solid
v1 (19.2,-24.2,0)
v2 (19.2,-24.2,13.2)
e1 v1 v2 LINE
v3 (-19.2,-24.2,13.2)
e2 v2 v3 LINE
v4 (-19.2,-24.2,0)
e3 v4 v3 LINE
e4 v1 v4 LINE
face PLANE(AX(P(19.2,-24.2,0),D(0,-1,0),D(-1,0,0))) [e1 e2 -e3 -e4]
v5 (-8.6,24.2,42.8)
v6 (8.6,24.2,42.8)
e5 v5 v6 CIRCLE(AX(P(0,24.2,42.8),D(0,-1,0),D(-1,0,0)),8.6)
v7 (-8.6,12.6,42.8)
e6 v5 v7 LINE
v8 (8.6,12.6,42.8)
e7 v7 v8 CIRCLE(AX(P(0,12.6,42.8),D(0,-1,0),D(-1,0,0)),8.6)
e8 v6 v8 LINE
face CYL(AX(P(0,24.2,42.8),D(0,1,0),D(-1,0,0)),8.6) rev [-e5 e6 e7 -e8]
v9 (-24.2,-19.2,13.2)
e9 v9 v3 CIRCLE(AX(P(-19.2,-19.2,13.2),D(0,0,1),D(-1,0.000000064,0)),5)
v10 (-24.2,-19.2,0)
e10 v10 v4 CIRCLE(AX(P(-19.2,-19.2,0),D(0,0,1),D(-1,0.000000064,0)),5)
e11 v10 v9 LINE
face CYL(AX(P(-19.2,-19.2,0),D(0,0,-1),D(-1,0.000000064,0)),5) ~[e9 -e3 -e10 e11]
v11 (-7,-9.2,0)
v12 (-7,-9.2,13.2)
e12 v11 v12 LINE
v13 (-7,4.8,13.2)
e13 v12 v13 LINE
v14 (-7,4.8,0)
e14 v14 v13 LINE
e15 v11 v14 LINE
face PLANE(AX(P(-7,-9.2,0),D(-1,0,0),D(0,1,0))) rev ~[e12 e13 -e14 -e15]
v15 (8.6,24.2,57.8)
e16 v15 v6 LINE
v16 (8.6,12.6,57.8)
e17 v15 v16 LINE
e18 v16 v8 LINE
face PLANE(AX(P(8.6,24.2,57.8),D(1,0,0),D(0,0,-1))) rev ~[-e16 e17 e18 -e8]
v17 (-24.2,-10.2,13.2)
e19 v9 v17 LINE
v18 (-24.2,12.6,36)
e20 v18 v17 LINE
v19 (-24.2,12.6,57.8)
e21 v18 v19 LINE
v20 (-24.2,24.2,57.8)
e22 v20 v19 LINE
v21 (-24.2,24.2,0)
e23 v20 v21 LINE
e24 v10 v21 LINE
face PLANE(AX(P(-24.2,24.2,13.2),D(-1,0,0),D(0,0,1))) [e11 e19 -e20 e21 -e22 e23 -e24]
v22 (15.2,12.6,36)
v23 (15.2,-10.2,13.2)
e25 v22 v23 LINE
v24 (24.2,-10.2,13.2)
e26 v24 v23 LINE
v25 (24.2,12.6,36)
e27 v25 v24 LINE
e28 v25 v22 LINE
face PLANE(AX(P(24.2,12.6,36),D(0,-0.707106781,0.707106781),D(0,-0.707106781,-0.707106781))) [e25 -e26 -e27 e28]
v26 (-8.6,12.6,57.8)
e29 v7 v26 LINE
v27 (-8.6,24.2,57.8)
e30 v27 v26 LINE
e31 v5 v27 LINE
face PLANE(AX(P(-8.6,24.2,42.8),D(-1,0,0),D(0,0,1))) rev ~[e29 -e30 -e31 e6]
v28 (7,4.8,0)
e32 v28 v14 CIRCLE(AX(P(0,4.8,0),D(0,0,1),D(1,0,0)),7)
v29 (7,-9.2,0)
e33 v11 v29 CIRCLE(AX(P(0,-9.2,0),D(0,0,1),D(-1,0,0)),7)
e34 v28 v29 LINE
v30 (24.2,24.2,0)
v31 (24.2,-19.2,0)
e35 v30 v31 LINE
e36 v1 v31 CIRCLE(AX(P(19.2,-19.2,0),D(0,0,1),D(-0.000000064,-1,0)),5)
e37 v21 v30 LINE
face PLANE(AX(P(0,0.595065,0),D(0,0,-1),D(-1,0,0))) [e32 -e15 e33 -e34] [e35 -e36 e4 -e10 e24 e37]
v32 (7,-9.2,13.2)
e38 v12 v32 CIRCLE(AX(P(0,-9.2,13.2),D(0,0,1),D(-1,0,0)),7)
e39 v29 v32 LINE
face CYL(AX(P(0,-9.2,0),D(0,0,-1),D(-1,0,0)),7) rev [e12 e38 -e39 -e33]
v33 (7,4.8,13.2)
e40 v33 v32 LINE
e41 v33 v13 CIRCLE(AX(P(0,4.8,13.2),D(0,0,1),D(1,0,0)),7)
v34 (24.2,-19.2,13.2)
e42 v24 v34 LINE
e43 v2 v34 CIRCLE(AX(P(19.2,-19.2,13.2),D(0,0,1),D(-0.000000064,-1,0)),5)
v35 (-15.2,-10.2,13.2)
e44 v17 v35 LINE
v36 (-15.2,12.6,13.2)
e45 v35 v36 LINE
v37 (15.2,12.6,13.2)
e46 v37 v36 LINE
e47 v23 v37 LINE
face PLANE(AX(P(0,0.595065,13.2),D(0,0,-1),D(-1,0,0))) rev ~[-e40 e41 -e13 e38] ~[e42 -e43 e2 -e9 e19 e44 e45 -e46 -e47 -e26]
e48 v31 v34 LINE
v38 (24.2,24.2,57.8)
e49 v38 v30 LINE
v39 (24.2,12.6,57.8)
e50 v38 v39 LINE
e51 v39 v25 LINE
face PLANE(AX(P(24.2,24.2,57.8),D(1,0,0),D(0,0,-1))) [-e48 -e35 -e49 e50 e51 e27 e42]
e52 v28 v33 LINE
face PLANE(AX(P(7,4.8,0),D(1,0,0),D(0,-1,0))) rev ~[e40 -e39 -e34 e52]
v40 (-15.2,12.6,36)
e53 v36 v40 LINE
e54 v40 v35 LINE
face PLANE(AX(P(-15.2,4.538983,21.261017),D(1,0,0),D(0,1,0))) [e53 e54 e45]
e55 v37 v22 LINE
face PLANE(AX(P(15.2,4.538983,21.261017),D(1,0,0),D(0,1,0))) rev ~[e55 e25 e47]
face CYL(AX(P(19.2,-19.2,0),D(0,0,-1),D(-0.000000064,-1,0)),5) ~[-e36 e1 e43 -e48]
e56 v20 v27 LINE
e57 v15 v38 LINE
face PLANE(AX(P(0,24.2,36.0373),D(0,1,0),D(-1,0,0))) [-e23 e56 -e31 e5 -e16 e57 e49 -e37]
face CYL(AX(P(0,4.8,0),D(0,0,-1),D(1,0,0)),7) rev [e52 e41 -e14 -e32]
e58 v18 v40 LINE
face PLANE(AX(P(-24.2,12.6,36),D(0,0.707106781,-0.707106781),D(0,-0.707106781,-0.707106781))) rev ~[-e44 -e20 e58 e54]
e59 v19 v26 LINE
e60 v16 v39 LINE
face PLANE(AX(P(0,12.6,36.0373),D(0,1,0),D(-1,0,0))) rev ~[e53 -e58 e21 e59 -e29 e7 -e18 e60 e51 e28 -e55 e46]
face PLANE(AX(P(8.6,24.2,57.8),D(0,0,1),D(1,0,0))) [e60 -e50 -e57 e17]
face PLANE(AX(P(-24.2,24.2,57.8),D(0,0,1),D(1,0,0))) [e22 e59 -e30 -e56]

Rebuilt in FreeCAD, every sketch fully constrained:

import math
import FreeCAD as App
import Part
import Sketcher
from FreeCAD import Vector
Q = App.Units.Quantity

doc = App.newDocument("Part")
body = doc.addObject("PartDesign::Body", "Body")

# Sketch on XZ plane
sketch1 = body.newObject("Sketcher::SketchObject", "Sketch")
sketch1.AttachmentSupport = (doc.getObject("XZ_Plane"), [""])
sketch1.MapMode = "FlatFace"
sketch1.AttachmentOffset = App.Placement(Vector(0, 0, -24.2), App.Rotation())
sketch1.addGeometry(Part.LineSegment(Vector(-8.6, 57.8, 0), Vector(-24.2, 57.8, 0)), False)
sketch1.addGeometry(Part.LineSegment(Vector(-24.2, 57.8, 0), Vector(-24.2, 13.2, 0)), False)
sketch1.addGeometry(Part.LineSegment(Vector(-24.2, 13.2, 0), Vector(24.2, 13.2, 0)), False)
sketch1.addGeometry(Part.LineSegment(Vector(24.2, 13.2, 0), Vector(24.2, 57.8, 0)), False)
sketch1.addGeometry(Part.LineSegment(Vector(24.2, 57.8, 0), Vector(8.6, 57.8, 0)), False)
sketch1.addGeometry(Part.LineSegment(Vector(8.6, 57.8, 0), Vector(8.6, 42.8, 0)), False)
sketch1.addGeometry(Part.ArcOfCircle(Part.Circle(Vector(0, 42.8, 0), Vector(0, 0, 1), 8.6), math.radians(180), math.radians(360)), False)
sketch1.addGeometry(Part.LineSegment(Vector(-8.6, 42.8, 0), Vector(-8.6, 57.8, 0)), False)
sketch1.addConstraint(Sketcher.Constraint("Coincident", 0, 2, 1, 1))
sketch1.addConstraint(Sketcher.Constraint("Coincident", 1, 2, 2, 1))
sketch1.addConstraint(Sketcher.Constraint("Coincident", 2, 2, 3, 1))
sketch1.addConstraint(Sketcher.Constraint("Coincident", 3, 2, 4, 1))
sketch1.addConstraint(Sketcher.Constraint("Coincident", 4, 2, 5, 1))
sketch1.addConstraint(Sketcher.Constraint("Tangent", 5, 2, 6, 2))
sketch1.addConstraint(Sketcher.Constraint("Tangent", 6, 1, 7, 1))
sketch1.addConstraint(Sketcher.Constraint("Coincident", 7, 2, 0, 1))
sketch1.addConstraint(Sketcher.Constraint("Horizontal", 0))
sketch1.addConstraint(Sketcher.Constraint("Vertical", 1))
sketch1.addConstraint(Sketcher.Constraint("Horizontal", 2))
sketch1.addConstraint(Sketcher.Constraint("Vertical", 3))
sketch1.addConstraint(Sketcher.Constraint("Horizontal", 4))
sketch1.addConstraint(Sketcher.Constraint("Vertical", 5))
sketch1.addConstraint(Sketcher.Constraint("Vertical", 7))
sketch1.addConstraint(Sketcher.Constraint("Symmetric", 0, 2, 3, 2, -2))
sketch1.addConstraint(Sketcher.Constraint("PointOnObject", 6, 3, -2))
sketch1.addConstraint(Sketcher.Constraint("Radius", 6, Q("8.6 mm")))
sketch1.addConstraint(Sketcher.Constraint("DistanceY", 5, 2, 5, 1, Q("15 mm")))
sketch1.addConstraint(Sketcher.Constraint("DistanceX", 0, 2, 0, 1, Q("15.6 mm")))
sketch1.addConstraint(Sketcher.Constraint("DistanceY", 1, 2, 1, 1, Q("44.6 mm")))
sketch1.addConstraint(Sketcher.Constraint("DistanceY", -1, 1, 6, 3, Q("42.8 mm")))
pad1 = body.newObject("PartDesign::Pad", "Pad")
pad1.Profile = sketch1
pad1.Length = 11.6
body2 = doc.addObject("PartDesign::Body", "Body001")

# Sketch on XY plane
sketch2 = body2.newObject("Sketcher::SketchObject", "Sketch001")
sketch2.AttachmentSupport = (doc.getObject("XY_Plane001"), [""])
sketch2.MapMode = "FlatFace"
sketch2.addGeometry(Part.LineSegment(Vector(24.2, 24.2, 0), Vector(-24.2, 24.2, 0)), False)
sketch2.addGeometry(Part.LineSegment(Vector(-24.2, 24.2, 0), Vector(-24.2, -19.2, 0)), False)
sketch2.addGeometry(Part.ArcOfCircle(Part.Circle(Vector(-19.2, -19.2, 0), Vector(0, 0, 1), 5), math.radians(179.999996), math.radians(270.000004)), False)
sketch2.addGeometry(Part.LineSegment(Vector(-19.2, -24.2, 0), Vector(19.2, -24.2, 0)), False)
sketch2.addGeometry(Part.ArcOfCircle(Part.Circle(Vector(19.2, -19.2, 0), Vector(0, 0, 1), 5), math.radians(-90.000004), math.radians(0.000004)), False)
sketch2.addGeometry(Part.LineSegment(Vector(24.2, -19.2, 0), Vector(24.2, 24.2, 0)), False)
sketch2.addGeometry(Part.LineSegment(Vector(7, 4.8, 0), Vector(7, -9.2, 0)), False)
sketch2.addGeometry(Part.ArcOfCircle(Part.Circle(Vector(0, -9.2, 0), Vector(0, 0, 1), 7), math.radians(180), math.radians(360)), False)
sketch2.addGeometry(Part.LineSegment(Vector(-7, -9.2, 0), Vector(-7, 4.8, 0)), False)
sketch2.addGeometry(Part.ArcOfCircle(Part.Circle(Vector(0, 4.8, 0), Vector(0, 0, 1), 7), math.radians(0), math.radians(180)), False)
sketch2.addConstraint(Sketcher.Constraint("Coincident", 0, 2, 1, 1))
sketch2.addConstraint(Sketcher.Constraint("Tangent", 1, 2, 2, 1))
sketch2.addConstraint(Sketcher.Constraint("Tangent", 2, 2, 3, 1))
sketch2.addConstraint(Sketcher.Constraint("Tangent", 3, 2, 4, 1))
sketch2.addConstraint(Sketcher.Constraint("Tangent", 4, 2, 5, 1))
sketch2.addConstraint(Sketcher.Constraint("Coincident", 5, 2, 0, 1))
sketch2.addConstraint(Sketcher.Constraint("Tangent", 6, 2, 7, 2))
sketch2.addConstraint(Sketcher.Constraint("Tangent", 7, 1, 8, 1))
sketch2.addConstraint(Sketcher.Constraint("Tangent", 8, 2, 9, 2))
sketch2.addConstraint(Sketcher.Constraint("Tangent", 9, 1, 6, 1))
sketch2.addConstraint(Sketcher.Constraint("Horizontal", 0))
sketch2.addConstraint(Sketcher.Constraint("Vertical", 1))
sketch2.addConstraint(Sketcher.Constraint("Horizontal", 3))
sketch2.addConstraint(Sketcher.Constraint("Vertical", 5))
sketch2.addConstraint(Sketcher.Constraint("Vertical", 6))
sketch2.addConstraint(Sketcher.Constraint("Vertical", 8))
sketch2.addConstraint(Sketcher.Constraint("Equal", 2, 4))
sketch2.addConstraint(Sketcher.Constraint("PointOnObject", 7, 3, -2))
sketch2.addConstraint(Sketcher.Constraint("Radius", 2, Q("5 mm")))
sketch2.addConstraint(Sketcher.Constraint("Radius", 7, Q("7 mm")))
sketch2.addConstraint(Sketcher.Constraint("DistanceY", 6, 2, 6, 1, Q("14 mm")))
sketch2.addConstraint(Sketcher.Constraint("DistanceX", 0, 2, 0, 1, Q("48.4 mm")))
sketch2.addConstraint(Sketcher.Constraint("DistanceY", 1, 2, 1, 1, Q("43.4 mm")))
sketch2.addConstraint(Sketcher.Constraint("DistanceY", 2, 3, 7, 3, Q("10 mm")))
sketch2.addConstraint(Sketcher.Constraint("DistanceX", 2, 3, -1, 1, Q("19.2 mm")))
sketch2.addConstraint(Sketcher.Constraint("DistanceY", 2, 3, -1, 1, Q("19.2 mm")))
pad2 = body2.newObject("PartDesign::Pad", "Pad001")
pad2.Profile = sketch2
pad2.Length = 13.2
doc.recompute()

boolean = body2.newObject("PartDesign::Boolean", "Boolean")
boolean.Type = "Fuse"
boolean.addObjects([body])
body3 = doc.addObject("PartDesign::Body", "Body002")

# Sketch on YZ plane
sketch3 = body3.newObject("Sketcher::SketchObject", "Sketch002")
sketch3.AttachmentSupport = (doc.getObject("YZ_Plane002"), [""])
sketch3.MapMode = "FlatFace"
sketch3.AttachmentOffset = App.Placement(Vector(0, 0, -24.2), App.Rotation())
sketch3.addGeometry(Part.LineSegment(Vector(-10.2, 13.2, 0), Vector(12.6, 13.2, 0)), False)
sketch3.addGeometry(Part.LineSegment(Vector(12.6, 13.2, 0), Vector(12.6, 36, 0)), False)
sketch3.addGeometry(Part.LineSegment(Vector(12.6, 36, 0), Vector(-10.2, 13.2, 0)), False)
sketch3.addConstraint(Sketcher.Constraint("Coincident", 0, 2, 1, 1))
sketch3.addConstraint(Sketcher.Constraint("Coincident", 1, 2, 2, 1))
sketch3.addConstraint(Sketcher.Constraint("Coincident", 2, 2, 0, 1))
sketch3.addConstraint(Sketcher.Constraint("Horizontal", 0))
sketch3.addConstraint(Sketcher.Constraint("Vertical", 1))
sketch3.addConstraint(Sketcher.Constraint("Equal", 0, 1))
sketch3.addConstraint(Sketcher.Constraint("DistanceX", 0, 1, 0, 2, Q("22.8 mm")))
sketch3.addConstraint(Sketcher.Constraint("DistanceY", -1, 1, 1, 2, Q("36 mm")))
sketch3.addConstraint(Sketcher.Constraint("DistanceX", -1, 1, 0, 2, Q("12.6 mm")))
pad3 = body3.newObject("PartDesign::Pad", "Pad002")
pad3.Profile = sketch3
pad3.Length = 9
body4 = doc.addObject("PartDesign::Body", "Body003")
body4.AllowCompound = True

# Sketch on YZ plane
sketch4 = body4.newObject("Sketcher::SketchObject", "Sketch003")
sketch4.AttachmentSupport = (doc.getObject("YZ_Plane003"), [""])
sketch4.MapMode = "FlatFace"
sketch4.AttachmentOffset = App.Placement(Vector(0, 0, 24.2), App.Rotation())
sketch4.addGeometry(Part.LineSegment(Vector(-10.2, 13.2, 0), Vector(12.6, 13.2, 0)), False)
sketch4.addGeometry(Part.LineSegment(Vector(12.6, 13.2, 0), Vector(12.6, 36, 0)), False)
sketch4.addGeometry(Part.LineSegment(Vector(12.6, 36, 0), Vector(-10.2, 13.2, 0)), False)
sketch4.addConstraint(Sketcher.Constraint("Coincident", 0, 2, 1, 1))
sketch4.addConstraint(Sketcher.Constraint("Coincident", 1, 2, 2, 1))
sketch4.addConstraint(Sketcher.Constraint("Coincident", 2, 2, 0, 1))
sketch4.addConstraint(Sketcher.Constraint("Horizontal", 0))
sketch4.addConstraint(Sketcher.Constraint("Vertical", 1))
sketch4.addConstraint(Sketcher.Constraint("Equal", 0, 1))
sketch4.addConstraint(Sketcher.Constraint("DistanceX", 0, 1, 0, 2, Q("22.8 mm")))
sketch4.addConstraint(Sketcher.Constraint("DistanceY", -1, 1, 1, 2, Q("36 mm")))
sketch4.addConstraint(Sketcher.Constraint("DistanceX", -1, 1, 0, 2, Q("12.6 mm")))
pad4 = body4.newObject("PartDesign::Pad", "Pad003")
pad4.Profile = sketch4
pad4.Length = 9
pad4.Reversed = True
doc.recompute()

boolean2 = body4.newObject("PartDesign::Boolean", "Boolean001")
boolean2.Type = "Fuse"
boolean2.addObjects([body3])
doc.recompute()

boolean3 = body4.newObject("PartDesign::Boolean", "Boolean002")
boolean3.Type = "Fuse"
boolean3.addObjects([body2])

doc.recompute()
